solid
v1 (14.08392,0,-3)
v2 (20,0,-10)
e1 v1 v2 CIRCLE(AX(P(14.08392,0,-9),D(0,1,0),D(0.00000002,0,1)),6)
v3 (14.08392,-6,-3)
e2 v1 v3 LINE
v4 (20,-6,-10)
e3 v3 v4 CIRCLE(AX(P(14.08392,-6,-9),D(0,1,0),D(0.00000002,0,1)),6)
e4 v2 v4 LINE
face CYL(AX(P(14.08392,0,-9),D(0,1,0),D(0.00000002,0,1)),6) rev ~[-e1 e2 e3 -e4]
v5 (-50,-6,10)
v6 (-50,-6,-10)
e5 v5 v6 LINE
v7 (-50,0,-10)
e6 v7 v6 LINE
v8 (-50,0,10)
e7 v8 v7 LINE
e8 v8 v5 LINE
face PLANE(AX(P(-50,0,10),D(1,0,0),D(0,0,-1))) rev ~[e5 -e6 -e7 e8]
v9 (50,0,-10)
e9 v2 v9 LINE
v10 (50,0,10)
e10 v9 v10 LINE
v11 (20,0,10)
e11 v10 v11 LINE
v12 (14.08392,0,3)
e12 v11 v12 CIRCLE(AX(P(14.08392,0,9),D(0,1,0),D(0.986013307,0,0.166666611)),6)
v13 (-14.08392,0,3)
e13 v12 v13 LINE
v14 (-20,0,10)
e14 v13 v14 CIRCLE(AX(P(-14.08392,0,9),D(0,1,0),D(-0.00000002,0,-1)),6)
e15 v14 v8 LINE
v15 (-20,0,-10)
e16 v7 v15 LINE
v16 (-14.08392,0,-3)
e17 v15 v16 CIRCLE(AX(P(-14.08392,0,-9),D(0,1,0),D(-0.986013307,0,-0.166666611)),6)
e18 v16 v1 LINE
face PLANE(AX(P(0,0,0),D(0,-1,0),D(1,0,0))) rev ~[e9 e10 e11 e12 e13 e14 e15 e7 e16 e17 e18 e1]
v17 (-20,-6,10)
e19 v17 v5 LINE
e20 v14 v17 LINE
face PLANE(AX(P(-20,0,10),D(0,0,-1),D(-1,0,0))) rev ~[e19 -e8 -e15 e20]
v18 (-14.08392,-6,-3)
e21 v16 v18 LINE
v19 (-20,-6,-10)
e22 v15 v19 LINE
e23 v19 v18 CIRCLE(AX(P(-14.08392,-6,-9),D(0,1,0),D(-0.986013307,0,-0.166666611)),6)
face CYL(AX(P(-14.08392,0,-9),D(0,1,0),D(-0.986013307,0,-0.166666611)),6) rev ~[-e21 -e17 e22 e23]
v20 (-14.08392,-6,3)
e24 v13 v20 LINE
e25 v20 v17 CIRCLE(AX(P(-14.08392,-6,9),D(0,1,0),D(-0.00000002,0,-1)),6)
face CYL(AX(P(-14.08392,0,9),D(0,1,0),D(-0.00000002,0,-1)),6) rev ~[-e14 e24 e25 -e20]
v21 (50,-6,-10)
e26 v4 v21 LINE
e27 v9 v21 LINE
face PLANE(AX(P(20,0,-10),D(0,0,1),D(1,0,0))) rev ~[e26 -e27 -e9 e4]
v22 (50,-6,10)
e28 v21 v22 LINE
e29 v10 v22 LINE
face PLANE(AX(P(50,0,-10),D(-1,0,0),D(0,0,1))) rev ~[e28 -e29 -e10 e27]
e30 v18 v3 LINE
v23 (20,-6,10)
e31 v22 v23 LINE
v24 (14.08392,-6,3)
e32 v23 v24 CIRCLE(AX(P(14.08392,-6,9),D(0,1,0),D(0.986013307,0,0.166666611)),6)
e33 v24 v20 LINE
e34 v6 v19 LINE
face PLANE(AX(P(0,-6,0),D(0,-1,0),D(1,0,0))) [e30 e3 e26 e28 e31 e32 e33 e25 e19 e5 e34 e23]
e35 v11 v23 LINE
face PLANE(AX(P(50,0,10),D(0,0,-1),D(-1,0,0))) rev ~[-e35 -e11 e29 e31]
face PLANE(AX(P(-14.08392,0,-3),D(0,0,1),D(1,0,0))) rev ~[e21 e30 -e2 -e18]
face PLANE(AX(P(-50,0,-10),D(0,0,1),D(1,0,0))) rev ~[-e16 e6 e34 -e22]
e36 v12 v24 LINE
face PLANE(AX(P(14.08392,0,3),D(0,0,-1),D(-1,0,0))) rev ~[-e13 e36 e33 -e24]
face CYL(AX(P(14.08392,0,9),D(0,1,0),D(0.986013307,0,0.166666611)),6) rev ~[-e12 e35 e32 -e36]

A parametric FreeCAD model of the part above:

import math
import FreeCAD as App
import Part
import Sketcher

V = App.Vector

doc = App.newDocument("Part")
body = doc.addObject("PartDesign::Body", "Body")

sketch1 = body.newObject("Sketcher::SketchObject", "Sketch")
sketch1.AttachmentSupport = (doc.getObject("XZ_Plane"), [""])
sketch1.MapMode = "FlatFace"
sketch1.addGeometry(Part.LineSegment(V(14, 3, 0), V(-14, 3, 0)), False)
sketch1.addGeometry(Part.ArcOfCircle(Part.Circle(V(-14, 9, 0), V(0, 0, 1), 6), math.radians(170), math.radians(270)), False)
sketch1.addGeometry(Part.LineSegment(V(-20, 10, 0), V(-50, 10, 0)), False)
sketch1.addGeometry(Part.LineSegment(V(-50, 10, 0), V(-50, -10, 0)), False)
sketch1.addGeometry(Part.LineSegment(V(-50, -10, 0), V(-20, -10, 0)), False)
sketch1.addGeometry(Part.ArcOfCircle(Part.Circle(V(-14, -9, 0), V(0, 0, 1), 6), math.radians(90), math.radians(190)), False)
sketch1.addGeometry(Part.LineSegment(V(-14, -3, 0), V(14, -3, 0)), False)
sketch1.addGeometry(Part.ArcOfCircle(Part.Circle(V(14, -9, 0), V(0, 0, 1), 6), math.radians(-10), math.radians(90)), False)
sketch1.addGeometry(Part.LineSegment(V(20, -10, 0), V(50, -10, 0)), False)
sketch1.addGeometry(Part.LineSegment(V(50, -10, 0), V(50, 10, 0)), False)
sketch1.addGeometry(Part.LineSegment(V(50, 10, 0), V(20, 10, 0)), False)
sketch1.addGeometry(Part.ArcOfCircle(Part.Circle(V(14, 9, 0), V(0, 0, 1), 6), math.radians(-90), math.radians(10)), False)
sketch1.addConstraint(Sketcher.Constraint("Tangent", 0, 2, 1, 2))
sketch1.addConstraint(Sketcher.Constraint("Coincident", 1, 1, 2, 1))
sketch1.addConstraint(Sketcher.Constraint("Coincident", 2, 2, 3, 1))
sketch1.addConstraint(Sketcher.Constraint("Coincident", 3, 2, 4, 1))
sketch1.addConstraint(Sketcher.Constraint("Coincident", 4, 2, 5, 2))
sketch1.addConstraint(Sketcher.Constraint("Tangent", 5, 1, 6, 1))
sketch1.addConstraint(Sketcher.Constraint("Tangent", 6, 2, 7, 2))
sketch1.addConstraint(Sketcher.Constraint("Coincident", 7, 1, 8, 1))
sketch1.addConstraint(Sketcher.Constraint("Coincident", 8, 2, 9, 1))
sketch1.addConstraint(Sketcher.Constraint("Coincident", 9, 2, 10, 1))
sketch1.addConstraint(Sketcher.Constraint("Coincident", 10, 2, 11, 2))
sketch1.addConstraint(Sketcher.Constraint("Tangent", 11, 1, 0, 1))
sketch1.addConstraint(Sketcher.Constraint("Horizontal", 0))
sketch1.addConstraint(Sketcher.Constraint("Horizontal", 2))
sketch1.addConstraint(Sketcher.Constraint("Vertical", 3))
sketch1.addConstraint(Sketcher.Constraint("Horizontal", 4))
sketch1.addConstraint(Sketcher.Constraint("Horizontal", 6))
sketch1.addConstraint(Sketcher.Constraint("Horizontal", 8))
sketch1.addConstraint(Sketcher.Constraint("Vertical", 9))
sketch1.addConstraint(Sketcher.Constraint("Horizontal", 10))
sketch1.addConstraint(Sketcher.Constraint("Equal", 1, 5))
sketch1.addConstraint(Sketcher.Constraint("Equal", 5, 7))
sketch1.addConstraint(Sketcher.Constraint("Equal", 7, 11))
sketch1.addConstraint(Sketcher.Constraint("Symmetric", 1, 3, 7, 3, -1, 1))
sketch1.addConstraint(Sketcher.Constraint("Symmetric", 2, 2, 8, 2, -1, 1))
sketch1.addConstraint(Sketcher.Constraint("Symmetric", 4, 2, 10, 2, -1, 1))
sketch1.addConstraint(Sketcher.Constraint("Symmetric", 4, 2, 7, 1, -2))
sketch1.addConstraint(Sketcher.Constraint("Radius", 1, 6.0))
sketch1.addConstraint(Sketcher.Constraint("DistanceX", 2, 2, 2, 1, 30.0))
sketch1.addConstraint(Sketcher.Constraint("DistanceY", 3, 2, 3, 1, 20.0))
sketch1.addConstraint(Sketcher.Constraint("DistanceY", -1, 1, 1, 3, 9.0))
sketch1.addConstraint(Sketcher.Constraint("DistanceX", 1, 1, -1, 1, 20.0))
pad1 = body.newObject("PartDesign::Pad", "Pad")
pad1.Profile = sketch1
pad1.Length = 6

doc.recompute()
